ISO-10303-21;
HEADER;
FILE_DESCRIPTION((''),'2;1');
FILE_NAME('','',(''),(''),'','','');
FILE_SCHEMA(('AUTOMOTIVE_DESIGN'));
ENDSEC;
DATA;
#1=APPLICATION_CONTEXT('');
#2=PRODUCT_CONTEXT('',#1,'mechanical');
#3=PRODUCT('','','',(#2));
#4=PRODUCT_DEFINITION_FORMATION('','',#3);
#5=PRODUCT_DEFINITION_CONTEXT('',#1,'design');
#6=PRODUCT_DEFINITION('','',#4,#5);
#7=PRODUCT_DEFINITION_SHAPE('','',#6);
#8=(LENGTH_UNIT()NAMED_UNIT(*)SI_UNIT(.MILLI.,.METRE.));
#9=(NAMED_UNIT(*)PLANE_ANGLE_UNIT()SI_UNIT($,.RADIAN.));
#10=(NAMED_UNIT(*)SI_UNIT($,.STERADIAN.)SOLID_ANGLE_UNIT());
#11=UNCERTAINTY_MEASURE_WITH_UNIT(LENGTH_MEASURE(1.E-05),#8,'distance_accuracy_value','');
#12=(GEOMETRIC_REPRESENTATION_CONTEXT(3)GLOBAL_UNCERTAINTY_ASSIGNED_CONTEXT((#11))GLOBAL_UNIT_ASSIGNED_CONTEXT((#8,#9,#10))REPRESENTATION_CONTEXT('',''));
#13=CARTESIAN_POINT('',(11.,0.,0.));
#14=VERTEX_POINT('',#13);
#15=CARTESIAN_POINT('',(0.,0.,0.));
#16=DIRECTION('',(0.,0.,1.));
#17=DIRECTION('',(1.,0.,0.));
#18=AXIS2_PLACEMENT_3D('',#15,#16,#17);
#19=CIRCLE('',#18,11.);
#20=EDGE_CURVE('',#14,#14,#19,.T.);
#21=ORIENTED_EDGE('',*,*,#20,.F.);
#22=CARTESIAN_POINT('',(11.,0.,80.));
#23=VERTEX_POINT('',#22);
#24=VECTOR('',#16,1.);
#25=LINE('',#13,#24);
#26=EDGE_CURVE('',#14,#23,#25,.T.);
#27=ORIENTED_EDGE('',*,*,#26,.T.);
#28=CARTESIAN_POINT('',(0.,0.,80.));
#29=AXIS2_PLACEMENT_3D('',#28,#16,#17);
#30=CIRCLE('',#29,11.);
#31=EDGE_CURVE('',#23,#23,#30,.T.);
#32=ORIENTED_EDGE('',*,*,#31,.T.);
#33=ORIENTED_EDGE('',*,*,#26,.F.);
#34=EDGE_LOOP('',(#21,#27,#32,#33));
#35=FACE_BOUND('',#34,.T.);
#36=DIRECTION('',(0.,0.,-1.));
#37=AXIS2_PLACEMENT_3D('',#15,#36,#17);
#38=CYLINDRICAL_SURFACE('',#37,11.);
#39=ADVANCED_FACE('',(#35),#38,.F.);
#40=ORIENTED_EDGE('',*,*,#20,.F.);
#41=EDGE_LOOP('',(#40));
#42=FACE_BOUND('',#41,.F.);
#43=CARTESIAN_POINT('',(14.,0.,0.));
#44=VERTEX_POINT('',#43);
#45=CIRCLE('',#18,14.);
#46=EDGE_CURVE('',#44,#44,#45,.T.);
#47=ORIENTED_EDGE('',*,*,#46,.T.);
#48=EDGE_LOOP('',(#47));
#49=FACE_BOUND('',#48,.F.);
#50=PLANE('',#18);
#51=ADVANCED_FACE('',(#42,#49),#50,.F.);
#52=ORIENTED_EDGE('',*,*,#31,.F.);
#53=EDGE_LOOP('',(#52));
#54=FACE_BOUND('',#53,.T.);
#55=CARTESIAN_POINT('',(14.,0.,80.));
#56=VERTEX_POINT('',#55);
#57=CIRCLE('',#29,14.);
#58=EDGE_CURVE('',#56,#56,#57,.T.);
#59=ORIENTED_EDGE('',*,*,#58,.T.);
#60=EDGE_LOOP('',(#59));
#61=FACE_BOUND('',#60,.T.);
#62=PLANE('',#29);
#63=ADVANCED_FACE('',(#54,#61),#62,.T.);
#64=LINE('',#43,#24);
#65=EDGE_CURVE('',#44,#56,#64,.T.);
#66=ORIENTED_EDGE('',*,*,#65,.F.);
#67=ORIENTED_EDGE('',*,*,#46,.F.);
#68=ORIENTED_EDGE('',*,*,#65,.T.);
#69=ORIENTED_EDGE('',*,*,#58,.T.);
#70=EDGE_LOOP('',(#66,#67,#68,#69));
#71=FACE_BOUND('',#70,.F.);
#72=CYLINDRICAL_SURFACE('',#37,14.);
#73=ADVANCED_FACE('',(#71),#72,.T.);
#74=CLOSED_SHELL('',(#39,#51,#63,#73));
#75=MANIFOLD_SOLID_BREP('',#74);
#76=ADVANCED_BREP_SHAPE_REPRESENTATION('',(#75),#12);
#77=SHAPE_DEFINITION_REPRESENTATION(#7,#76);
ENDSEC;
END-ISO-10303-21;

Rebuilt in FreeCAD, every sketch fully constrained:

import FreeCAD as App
import Part
import Sketcher

V = App.Vector

doc = App.newDocument("Part")
body = doc.addObject("PartDesign::Body", "Body")

# Sketch on XY plane
sketch1 = doc.addObject("Sketcher::SketchObject", "Sketch")
body.addObject(sketch1)
sketch1.AttachmentSupport = (doc.XY_Plane, [""])
sketch1.MapMode = "FlatFace"
sketch1.addGeometry(Part.Circle(V(0, 0, 0), V(0, 0, 1), 14), False)
sketch1.addGeometry(Part.Circle(V(0, 0, 0), V(0, 0, 1), 11), False)
sketch1.addConstraint(Sketcher.Constraint("Coincident", 0, 3, -1, 1))
sketch1.addConstraint(Sketcher.Constraint("Coincident", 1, 3, -1, 1))
sketch1.addConstraint(Sketcher.Constraint("Diameter", 0, 28.0))
sketch1.addConstraint(Sketcher.Constraint("Diameter", 1, 22.0))
pad1 = doc.addObject("PartDesign::Pad", "Pad")
body.addObject(pad1)
pad1.Profile = sketch1
pad1.Length = 80

doc.recompute()
